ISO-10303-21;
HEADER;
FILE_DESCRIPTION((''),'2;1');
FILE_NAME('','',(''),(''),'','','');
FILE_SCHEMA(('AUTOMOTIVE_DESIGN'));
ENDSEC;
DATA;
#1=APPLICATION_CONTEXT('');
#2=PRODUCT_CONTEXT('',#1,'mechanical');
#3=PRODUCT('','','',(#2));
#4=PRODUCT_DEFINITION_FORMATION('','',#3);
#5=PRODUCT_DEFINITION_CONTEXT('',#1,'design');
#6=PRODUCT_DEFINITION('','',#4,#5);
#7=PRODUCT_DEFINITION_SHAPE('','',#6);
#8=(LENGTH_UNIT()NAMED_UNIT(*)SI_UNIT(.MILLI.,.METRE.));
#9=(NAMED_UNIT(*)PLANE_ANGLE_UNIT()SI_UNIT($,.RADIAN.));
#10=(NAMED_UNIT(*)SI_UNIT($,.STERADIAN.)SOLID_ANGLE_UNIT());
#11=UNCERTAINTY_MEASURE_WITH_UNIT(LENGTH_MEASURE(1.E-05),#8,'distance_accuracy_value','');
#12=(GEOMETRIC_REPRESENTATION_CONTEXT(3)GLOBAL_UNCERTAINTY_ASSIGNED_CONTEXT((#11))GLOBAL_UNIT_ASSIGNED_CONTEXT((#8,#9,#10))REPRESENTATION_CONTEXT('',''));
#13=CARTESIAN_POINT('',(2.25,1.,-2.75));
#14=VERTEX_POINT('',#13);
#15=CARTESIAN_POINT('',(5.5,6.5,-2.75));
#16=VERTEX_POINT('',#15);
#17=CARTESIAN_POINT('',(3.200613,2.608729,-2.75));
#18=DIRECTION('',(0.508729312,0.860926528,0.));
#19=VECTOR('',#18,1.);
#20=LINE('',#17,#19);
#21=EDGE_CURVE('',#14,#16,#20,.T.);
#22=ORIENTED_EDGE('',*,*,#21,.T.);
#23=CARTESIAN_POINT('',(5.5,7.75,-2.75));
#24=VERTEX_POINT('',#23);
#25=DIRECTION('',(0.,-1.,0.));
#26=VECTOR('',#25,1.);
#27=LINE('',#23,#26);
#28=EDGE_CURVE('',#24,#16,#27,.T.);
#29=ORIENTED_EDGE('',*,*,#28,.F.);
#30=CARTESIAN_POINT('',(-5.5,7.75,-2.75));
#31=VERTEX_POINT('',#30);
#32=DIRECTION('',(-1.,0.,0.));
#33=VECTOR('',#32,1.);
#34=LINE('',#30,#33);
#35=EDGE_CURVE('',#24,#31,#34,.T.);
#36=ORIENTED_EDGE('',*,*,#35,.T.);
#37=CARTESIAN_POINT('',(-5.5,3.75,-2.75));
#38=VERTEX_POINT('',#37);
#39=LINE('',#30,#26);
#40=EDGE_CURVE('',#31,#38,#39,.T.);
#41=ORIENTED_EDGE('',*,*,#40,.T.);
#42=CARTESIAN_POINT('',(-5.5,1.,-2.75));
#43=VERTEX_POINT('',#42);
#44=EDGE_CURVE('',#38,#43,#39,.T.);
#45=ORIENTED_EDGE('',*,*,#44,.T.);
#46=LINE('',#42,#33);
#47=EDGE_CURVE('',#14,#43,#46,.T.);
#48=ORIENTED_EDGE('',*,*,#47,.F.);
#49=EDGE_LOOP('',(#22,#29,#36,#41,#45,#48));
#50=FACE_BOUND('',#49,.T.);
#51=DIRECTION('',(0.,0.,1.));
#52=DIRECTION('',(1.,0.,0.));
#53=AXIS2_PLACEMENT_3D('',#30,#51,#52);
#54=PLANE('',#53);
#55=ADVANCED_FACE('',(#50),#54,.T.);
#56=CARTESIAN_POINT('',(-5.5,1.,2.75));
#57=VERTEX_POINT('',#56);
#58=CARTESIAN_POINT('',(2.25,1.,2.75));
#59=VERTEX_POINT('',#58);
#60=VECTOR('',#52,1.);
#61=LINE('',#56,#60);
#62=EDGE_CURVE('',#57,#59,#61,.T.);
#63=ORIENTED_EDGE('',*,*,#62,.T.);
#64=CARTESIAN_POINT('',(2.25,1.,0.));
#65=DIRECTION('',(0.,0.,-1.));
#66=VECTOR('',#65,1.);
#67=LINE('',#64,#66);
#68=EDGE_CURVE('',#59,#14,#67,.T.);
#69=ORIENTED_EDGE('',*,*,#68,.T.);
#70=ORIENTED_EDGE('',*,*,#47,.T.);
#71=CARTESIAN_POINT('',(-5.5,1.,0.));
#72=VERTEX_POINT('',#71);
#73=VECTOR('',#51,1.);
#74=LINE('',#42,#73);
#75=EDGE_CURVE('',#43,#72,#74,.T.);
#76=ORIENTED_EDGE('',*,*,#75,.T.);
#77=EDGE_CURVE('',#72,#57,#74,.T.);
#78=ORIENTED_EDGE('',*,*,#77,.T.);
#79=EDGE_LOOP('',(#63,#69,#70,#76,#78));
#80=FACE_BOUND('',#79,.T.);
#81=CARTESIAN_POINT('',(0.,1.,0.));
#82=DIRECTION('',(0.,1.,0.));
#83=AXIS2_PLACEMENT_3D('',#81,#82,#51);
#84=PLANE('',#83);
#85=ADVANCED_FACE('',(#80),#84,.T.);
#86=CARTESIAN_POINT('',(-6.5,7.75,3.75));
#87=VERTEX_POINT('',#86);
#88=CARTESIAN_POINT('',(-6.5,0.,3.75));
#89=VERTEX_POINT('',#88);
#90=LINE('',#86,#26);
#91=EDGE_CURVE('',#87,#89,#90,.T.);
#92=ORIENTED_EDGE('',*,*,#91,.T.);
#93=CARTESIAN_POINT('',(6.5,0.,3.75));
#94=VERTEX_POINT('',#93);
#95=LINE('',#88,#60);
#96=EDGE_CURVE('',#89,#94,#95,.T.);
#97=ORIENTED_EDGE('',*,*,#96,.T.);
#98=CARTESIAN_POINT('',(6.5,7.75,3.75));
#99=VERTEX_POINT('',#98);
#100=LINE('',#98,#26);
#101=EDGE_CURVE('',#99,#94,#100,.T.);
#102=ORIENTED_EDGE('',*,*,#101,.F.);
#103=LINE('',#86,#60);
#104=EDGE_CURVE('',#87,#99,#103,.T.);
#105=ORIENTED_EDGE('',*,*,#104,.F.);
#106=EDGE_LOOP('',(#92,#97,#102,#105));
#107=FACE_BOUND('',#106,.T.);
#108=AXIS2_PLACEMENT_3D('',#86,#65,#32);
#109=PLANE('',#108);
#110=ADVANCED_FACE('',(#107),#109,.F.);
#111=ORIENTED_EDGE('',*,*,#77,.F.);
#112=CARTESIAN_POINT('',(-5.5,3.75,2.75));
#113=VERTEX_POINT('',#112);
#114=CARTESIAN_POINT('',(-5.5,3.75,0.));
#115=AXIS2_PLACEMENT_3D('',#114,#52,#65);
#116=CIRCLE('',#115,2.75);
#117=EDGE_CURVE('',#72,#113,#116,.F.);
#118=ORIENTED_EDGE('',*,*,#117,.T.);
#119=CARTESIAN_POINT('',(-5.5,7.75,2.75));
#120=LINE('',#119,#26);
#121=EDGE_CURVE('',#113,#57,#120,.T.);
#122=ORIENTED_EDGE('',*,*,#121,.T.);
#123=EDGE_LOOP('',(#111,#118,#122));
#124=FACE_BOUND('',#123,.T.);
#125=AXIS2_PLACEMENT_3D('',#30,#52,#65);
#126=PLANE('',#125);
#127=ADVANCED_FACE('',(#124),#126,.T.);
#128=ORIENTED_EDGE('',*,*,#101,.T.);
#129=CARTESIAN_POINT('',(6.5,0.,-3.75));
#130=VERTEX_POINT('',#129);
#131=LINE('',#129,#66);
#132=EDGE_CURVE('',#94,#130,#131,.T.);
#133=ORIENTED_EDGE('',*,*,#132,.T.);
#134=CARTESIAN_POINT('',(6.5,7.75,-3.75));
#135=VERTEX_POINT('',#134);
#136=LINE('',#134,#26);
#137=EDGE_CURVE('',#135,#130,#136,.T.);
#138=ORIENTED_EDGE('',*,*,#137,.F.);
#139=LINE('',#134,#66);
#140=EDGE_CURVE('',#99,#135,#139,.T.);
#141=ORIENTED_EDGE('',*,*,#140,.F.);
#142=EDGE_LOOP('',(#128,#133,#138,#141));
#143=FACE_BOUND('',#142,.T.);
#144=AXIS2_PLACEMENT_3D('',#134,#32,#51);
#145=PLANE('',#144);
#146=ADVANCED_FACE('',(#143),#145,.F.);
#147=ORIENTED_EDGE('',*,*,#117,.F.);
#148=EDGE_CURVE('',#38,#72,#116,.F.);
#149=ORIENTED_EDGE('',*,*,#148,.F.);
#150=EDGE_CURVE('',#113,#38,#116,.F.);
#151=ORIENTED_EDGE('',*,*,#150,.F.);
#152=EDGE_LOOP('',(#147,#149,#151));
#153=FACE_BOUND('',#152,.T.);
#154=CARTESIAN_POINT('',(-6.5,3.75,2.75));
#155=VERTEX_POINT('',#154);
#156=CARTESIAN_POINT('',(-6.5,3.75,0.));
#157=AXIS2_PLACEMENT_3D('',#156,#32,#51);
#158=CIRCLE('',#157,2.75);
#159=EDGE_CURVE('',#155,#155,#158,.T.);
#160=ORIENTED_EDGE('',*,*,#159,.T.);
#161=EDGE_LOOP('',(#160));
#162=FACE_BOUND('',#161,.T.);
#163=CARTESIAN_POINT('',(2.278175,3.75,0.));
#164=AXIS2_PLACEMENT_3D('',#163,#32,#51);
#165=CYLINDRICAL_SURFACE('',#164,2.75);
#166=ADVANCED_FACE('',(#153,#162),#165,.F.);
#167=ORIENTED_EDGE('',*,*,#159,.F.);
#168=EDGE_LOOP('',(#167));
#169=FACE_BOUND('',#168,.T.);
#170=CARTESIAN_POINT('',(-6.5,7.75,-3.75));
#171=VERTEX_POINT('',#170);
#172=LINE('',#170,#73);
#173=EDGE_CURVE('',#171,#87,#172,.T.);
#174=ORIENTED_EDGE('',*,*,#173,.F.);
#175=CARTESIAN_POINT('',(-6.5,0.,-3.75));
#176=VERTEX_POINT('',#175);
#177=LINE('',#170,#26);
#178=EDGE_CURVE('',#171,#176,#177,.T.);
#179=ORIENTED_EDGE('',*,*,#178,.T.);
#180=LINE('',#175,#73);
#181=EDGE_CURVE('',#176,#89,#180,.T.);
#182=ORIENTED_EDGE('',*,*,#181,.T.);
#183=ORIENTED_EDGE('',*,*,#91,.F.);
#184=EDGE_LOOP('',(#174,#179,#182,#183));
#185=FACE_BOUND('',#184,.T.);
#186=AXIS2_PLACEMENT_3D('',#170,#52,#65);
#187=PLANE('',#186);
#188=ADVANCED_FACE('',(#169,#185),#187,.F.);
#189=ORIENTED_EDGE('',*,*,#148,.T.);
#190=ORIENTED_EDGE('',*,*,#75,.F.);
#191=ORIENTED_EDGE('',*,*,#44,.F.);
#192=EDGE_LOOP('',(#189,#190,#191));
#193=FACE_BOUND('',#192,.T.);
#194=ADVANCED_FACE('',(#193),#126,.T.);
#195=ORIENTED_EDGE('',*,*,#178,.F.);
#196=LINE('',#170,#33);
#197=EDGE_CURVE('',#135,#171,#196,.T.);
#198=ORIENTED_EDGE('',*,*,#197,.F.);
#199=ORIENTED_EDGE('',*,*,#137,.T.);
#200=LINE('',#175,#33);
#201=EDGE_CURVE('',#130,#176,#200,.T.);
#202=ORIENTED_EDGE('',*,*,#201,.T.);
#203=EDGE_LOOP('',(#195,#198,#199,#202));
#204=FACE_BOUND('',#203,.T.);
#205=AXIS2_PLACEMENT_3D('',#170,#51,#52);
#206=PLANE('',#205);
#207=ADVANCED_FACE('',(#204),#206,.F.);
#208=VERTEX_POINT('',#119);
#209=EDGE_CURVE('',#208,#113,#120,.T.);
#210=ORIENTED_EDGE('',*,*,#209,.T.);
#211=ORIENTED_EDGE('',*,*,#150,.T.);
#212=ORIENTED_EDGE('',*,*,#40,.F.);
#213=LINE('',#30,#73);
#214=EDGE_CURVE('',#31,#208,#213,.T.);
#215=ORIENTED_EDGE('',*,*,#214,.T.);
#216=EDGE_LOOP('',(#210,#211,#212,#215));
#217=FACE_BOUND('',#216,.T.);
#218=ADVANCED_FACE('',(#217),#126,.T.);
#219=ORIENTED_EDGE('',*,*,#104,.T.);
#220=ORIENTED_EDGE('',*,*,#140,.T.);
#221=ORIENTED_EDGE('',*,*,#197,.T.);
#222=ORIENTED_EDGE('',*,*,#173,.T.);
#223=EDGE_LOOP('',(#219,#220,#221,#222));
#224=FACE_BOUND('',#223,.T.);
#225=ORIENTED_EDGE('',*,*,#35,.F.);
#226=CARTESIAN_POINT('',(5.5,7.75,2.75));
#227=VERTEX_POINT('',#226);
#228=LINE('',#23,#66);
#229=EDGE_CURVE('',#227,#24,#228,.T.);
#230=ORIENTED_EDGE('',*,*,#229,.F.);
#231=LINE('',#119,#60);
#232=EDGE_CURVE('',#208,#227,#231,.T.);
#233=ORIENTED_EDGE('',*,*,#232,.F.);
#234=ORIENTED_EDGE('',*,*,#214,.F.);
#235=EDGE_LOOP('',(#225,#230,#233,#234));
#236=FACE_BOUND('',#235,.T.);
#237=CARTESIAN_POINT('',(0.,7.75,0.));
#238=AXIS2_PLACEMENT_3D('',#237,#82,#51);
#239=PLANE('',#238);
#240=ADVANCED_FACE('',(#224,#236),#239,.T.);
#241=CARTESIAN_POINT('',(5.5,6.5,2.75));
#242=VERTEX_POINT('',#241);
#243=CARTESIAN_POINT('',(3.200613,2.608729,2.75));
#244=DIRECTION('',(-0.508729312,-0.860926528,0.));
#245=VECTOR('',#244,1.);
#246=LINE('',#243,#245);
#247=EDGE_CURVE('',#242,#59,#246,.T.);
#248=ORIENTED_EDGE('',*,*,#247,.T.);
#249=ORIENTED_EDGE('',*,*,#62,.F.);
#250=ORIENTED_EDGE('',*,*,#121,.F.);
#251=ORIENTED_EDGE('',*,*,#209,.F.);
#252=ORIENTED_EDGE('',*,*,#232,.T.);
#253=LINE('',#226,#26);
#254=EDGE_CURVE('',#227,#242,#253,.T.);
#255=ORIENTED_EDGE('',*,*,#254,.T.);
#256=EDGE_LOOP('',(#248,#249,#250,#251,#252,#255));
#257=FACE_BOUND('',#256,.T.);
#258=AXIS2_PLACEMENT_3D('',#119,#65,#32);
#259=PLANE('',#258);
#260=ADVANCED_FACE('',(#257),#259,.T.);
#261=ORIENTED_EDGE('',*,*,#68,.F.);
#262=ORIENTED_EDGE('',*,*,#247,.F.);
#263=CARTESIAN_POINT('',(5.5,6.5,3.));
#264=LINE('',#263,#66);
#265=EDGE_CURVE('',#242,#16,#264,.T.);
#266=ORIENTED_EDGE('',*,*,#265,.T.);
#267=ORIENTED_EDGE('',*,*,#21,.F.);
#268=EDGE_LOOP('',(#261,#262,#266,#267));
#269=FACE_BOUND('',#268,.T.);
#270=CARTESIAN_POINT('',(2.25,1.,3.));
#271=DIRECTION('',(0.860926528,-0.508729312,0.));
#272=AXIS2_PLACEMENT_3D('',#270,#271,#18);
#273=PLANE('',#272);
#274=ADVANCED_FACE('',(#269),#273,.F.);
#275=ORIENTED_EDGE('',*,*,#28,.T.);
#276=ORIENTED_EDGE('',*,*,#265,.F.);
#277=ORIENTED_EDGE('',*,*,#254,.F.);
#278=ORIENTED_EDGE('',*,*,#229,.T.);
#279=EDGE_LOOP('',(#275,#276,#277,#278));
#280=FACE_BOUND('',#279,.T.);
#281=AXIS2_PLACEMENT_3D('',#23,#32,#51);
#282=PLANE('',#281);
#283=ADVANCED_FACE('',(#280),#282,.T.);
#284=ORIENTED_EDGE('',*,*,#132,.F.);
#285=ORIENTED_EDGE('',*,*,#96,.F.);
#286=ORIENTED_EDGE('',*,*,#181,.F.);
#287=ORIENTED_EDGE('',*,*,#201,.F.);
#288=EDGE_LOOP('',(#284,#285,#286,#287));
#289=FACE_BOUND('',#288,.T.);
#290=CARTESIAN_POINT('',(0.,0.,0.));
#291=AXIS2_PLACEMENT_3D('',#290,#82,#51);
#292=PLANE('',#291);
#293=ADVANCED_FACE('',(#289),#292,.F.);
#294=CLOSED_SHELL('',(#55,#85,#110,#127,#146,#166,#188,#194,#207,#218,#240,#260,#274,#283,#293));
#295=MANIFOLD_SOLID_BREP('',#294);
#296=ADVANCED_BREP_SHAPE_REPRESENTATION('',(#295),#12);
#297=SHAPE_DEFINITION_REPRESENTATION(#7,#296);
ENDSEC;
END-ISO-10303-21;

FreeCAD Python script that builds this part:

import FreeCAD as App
import Part
import Sketcher

V = App.Vector
Q = App.Units.Quantity


def add_polygon(sketch, points):
    """Adds a closed chain of lines whose ends are joined by coincident constraints."""
    first, n = sketch.GeometryCount, len(points)
    for a, b in zip(points, points[1:] + points[:1]):
        sketch.addGeometry(Part.LineSegment(App.Vector(*a, 0), App.Vector(*b, 0)), False)
    for i in range(n):
        sketch.addConstraint(Sketcher.Constraint("Coincident", first + i, 2, first + (i + 1) % n, 1))

doc = App.newDocument("Part")
body = doc.addObject("PartDesign::Body", "Body")

# Sketch on XZ plane
sketch1 = doc.addObject("Sketcher::SketchObject", "Sketch")
body.addObject(sketch1)
sketch1.AttachmentSupport = (doc.XZ_Plane, [""])
sketch1.MapMode = "FlatFace"
add_polygon(sketch1, [(-6.5, -3.75), (-6.5, 3.75), (6.5, 3.75), (6.5, -3.75)])  # lines 0-3
add_polygon(sketch1, [(5.5, 2.75), (-5.5, 2.75), (-5.5, -2.75), (5.5, -2.75)])  # lines 4-7
sketch1.addConstraint(Sketcher.Constraint("Vertical", 0))
sketch1.addConstraint(Sketcher.Constraint("Horizontal", 1))
sketch1.addConstraint(Sketcher.Constraint("Vertical", 2))
sketch1.addConstraint(Sketcher.Constraint("Horizontal", 3))
sketch1.addConstraint(Sketcher.Constraint("Horizontal", 4))
sketch1.addConstraint(Sketcher.Constraint("Vertical", 5))
sketch1.addConstraint(Sketcher.Constraint("Horizontal", 6))
sketch1.addConstraint(Sketcher.Constraint("Vertical", 7))
sketch1.addConstraint(Sketcher.Constraint("Symmetric", 0, 2, 2, 2, -1, 1))
sketch1.addConstraint(Sketcher.Constraint("Symmetric", 4, 2, 6, 2, -1, 1))
sketch1.addConstraint(Sketcher.Constraint("DistanceX", 1, 1, 1, 2, Q("13 mm")))
sketch1.addConstraint(Sketcher.Constraint("DistanceX", 4, 2, 4, 1, Q("11 mm")))
sketch1.addConstraint(Sketcher.Constraint("DistanceY", 0, 1, 0, 2, Q("7.5 mm")))
sketch1.addConstraint(Sketcher.Constraint("DistanceY", 5, 2, 5, 1, Q("5.5 mm")))
pad1 = doc.addObject("PartDesign::Pad", "Pad")
body.addObject(pad1)
pad1.Profile = sketch1
pad1.Length = 7.75
pad1.Reversed = True

# Sketch on YZ plane
sketch2 = doc.addObject("Sketcher::SketchObject", "Sketch001")
body.addObject(sketch2)
sketch2.AttachmentSupport = (doc.YZ_Plane, [""])
sketch2.MapMode = "FlatFace"
sketch2.AttachmentOffset = App.Placement(V(0, 0, -6.5), App.Rotation())
sketch2.addGeometry(Part.Circle(V(3.75, 0, 0), V(0, 0, 1), 2.75), False)
sketch2.addConstraint(Sketcher.Constraint("PointOnObject", 0, 3, -1))
sketch2.addConstraint(Sketcher.Constraint("Diameter", 0, Q("5.5 mm")))
sketch2.addConstraint(Sketcher.Constraint("DistanceX", -1, 1, 0, 3, Q("3.75 mm")))
pocket1 = doc.addObject("PartDesign::Pocket", "Pocket")
body.addObject(pocket1)
pocket1.Profile = sketch2
pocket1.Length = 1
pocket1.Reversed = True

# Sketch on XZ plane
sketch3 = doc.addObject("Sketcher::SketchObject", "Sketch002")
body.addObject(sketch3)
sketch3.AttachmentSupport = (doc.XZ_Plane, [""])
sketch3.MapMode = "FlatFace"
add_polygon(sketch3, [(-6.5, 3.75), (-6.5, -3.75), (6.5, -3.75), (6.5, 3.75)])  # lines 0-3
sketch3.addConstraint(Sketcher.Constraint("Vertical", 0))
sketch3.addConstraint(Sketcher.Constraint("Horizontal", 1))
sketch3.addConstraint(Sketcher.Constraint("Vertical", 2))
sketch3.addConstraint(Sketcher.Constraint("Horizontal", 3))
sketch3.addConstraint(Sketcher.Constraint("Symmetric", 0, 2, 2, 2, -1, 1))
sketch3.addConstraint(Sketcher.Constraint("DistanceX", 1, 1, 1, 2, Q("13 mm")))
sketch3.addConstraint(Sketcher.Constraint("DistanceY", 0, 2, 0, 1, Q("7.5 mm")))
pad2 = doc.addObject("PartDesign::Pad", "Pad001")
body.addObject(pad2)
pad2.Profile = sketch3
pad2.Length = 1
pad2.Reversed = True

# Sketch on XY plane
sketch4 = doc.addObject("Sketcher::SketchObject", "Sketch003")
body.addObject(sketch4)
sketch4.AttachmentSupport = (doc.XY_Plane, [""])
sketch4.MapMode = "FlatFace"
add_polygon(sketch4, [(5.5, 6.5), (2.25, 1), (5.5, 1)])  # lines 0-2
sketch4.addConstraint(Sketcher.Constraint("Horizontal", 1))
sketch4.addConstraint(Sketcher.Constraint("Vertical", 2))
sketch4.addConstraint(Sketcher.Constraint("DistanceY", 2, 1, 2, 2, Q("5.5 mm")))
sketch4.addConstraint(Sketcher.Constraint("DistanceY", -1, 1, 0, 2, Q("1 mm")))
sketch4.addConstraint(Sketcher.Constraint("DistanceX", 1, 1, 1, 2, Q("3.25 mm")))
sketch4.addConstraint(Sketcher.Constraint("DistanceX", -1, 1, 1, 2, Q("5.5 mm")))
pad3 = doc.addObject("PartDesign::Pad", "Pad002")
body.addObject(pad3)
pad3.Profile = sketch4
pad3.Length = 6
pad3.Midplane = True

doc.recompute()
